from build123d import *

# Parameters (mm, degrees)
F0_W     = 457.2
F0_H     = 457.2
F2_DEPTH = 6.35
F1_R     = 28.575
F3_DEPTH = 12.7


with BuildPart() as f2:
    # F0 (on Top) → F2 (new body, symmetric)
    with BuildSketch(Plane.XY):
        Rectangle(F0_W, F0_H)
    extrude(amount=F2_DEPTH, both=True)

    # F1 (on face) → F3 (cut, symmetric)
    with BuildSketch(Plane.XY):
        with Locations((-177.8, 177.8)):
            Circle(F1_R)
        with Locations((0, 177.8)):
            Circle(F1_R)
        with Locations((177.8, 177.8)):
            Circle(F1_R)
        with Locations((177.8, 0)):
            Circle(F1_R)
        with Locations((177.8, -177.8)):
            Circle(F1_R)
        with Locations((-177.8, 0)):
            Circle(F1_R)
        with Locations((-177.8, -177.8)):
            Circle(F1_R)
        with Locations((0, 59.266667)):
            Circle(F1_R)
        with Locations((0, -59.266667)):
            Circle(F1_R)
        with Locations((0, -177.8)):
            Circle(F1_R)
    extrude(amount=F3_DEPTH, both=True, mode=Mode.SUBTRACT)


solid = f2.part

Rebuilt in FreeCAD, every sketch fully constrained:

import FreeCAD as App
import Part
import Sketcher
Q = App.Units.Quantity


def add_polygon(sketch, points):
    """Adds a closed chain of lines whose ends are joined by coincident constraints."""
    first, n = sketch.GeometryCount, len(points)
    for a, b in zip(points, points[1:] + points[:1]):
        sketch.addGeometry(Part.LineSegment(App.Vector(*a, 0), App.Vector(*b, 0)), False)
    for i in range(n):
        sketch.addConstraint(Sketcher.Constraint("Coincident", first + i, 2, first + (i + 1) % n, 1))

doc = App.newDocument("Part")
params = doc.addObject("Spreadsheet::Sheet", "Params")
for row, (alias, value) in enumerate([
    ("sketch1_width", "18 in"),
    ("pad1_length", "0.5 in"),
    ("sketch2_diameter", "2.25 in"),
    ("pocket1_length", "1 in"),
], start=1):
    params.set(f"A{row}", alias)
    params.set(f"B{row}", "=" + value)
    params.setAlias(f"B{row}", alias)

body = doc.addObject("PartDesign::Body", "Body")

# Sketch on XY plane
sketch1 = body.newObject("Sketcher::SketchObject", "Sketch")
sketch1.AttachmentSupport = (doc.getObject("XY_Plane"), [""])
sketch1.MapMode = "FlatFace"
add_polygon(sketch1, [(-229, 229), (-229, -229), (229, -229), (229, 229)])  # lines 0-3
sketch1.addConstraint([
    Sketcher.Constraint("Vertical", 0),
    Sketcher.Constraint("Horizontal", 1),
    Sketcher.Constraint("Vertical", 2),
    Sketcher.Constraint("Horizontal", 3),
    Sketcher.Constraint("Symmetric", 0, 2, 2, 2, -1, 1),
    Sketcher.Constraint("Equal", 3, 0),
    Sketcher.Constraint("DistanceX", 1, 1, 1, 2, Q("18 in")),
])
sketch1.setExpression("Constraints[10]", "Params.sketch1_width")
pad1 = body.newObject("PartDesign::Pad", "Pad")
pad1.Profile = sketch1
pad1.setExpression("Length", "Params.pad1_length")
pad1.Midplane = True

# Sketch on XY plane
sketch2 = body.newObject("Sketcher::SketchObject", "Sketch001")
sketch2.AttachmentSupport = (doc.getObject("XY_Plane"), [""])
sketch2.MapMode = "FlatFace"
sketch2.addGeometry([
    Part.Circle(App.Vector(-178, 178, 0), App.Vector(0, 0, 1), 29),  # 0
    Part.Circle(App.Vector(0, 178, 0), App.Vector(0, 0, 1), 29),  # 1
    Part.Circle(App.Vector(178, 178, 0), App.Vector(0, 0, 1), 29),  # 2
    Part.Circle(App.Vector(178, 0, 0), App.Vector(0, 0, 1), 29),  # 3
    Part.Circle(App.Vector(178, -178, 0), App.Vector(0, 0, 1), 29),  # 4
    Part.Circle(App.Vector(-178, 0, 0), App.Vector(0, 0, 1), 29),  # 5
    Part.Circle(App.Vector(-178, -178, 0), App.Vector(0, 0, 1), 29),  # 6
    Part.Circle(App.Vector(0, 59, 0), App.Vector(0, 0, 1), 29),  # 7
    Part.Circle(App.Vector(0, -59, 0), App.Vector(0, 0, 1), 29),  # 8
    Part.Circle(App.Vector(0, -178, 0), App.Vector(0, 0, 1), 29),  # 9
], False)
sketch2.addConstraint([
    Sketcher.Constraint("Equal", 0, 1),
    Sketcher.Constraint("Equal", 1, 2),
    Sketcher.Constraint("Equal", 2, 3),
    Sketcher.Constraint("Equal", 3, 4),
    Sketcher.Constraint("Equal", 4, 5),
    Sketcher.Constraint("Equal", 5, 6),
    Sketcher.Constraint("Equal", 6, 7),
    Sketcher.Constraint("Equal", 7, 8),
    Sketcher.Constraint("Equal", 8, 9),
    Sketcher.Constraint("Symmetric", 0, 3, 4, 3, -1, 1),
    Sketcher.Constraint("Symmetric", 3, 3, 5, 3, -1, 1),
    Sketcher.Constraint("Symmetric", 2, 3, 6, 3, -1, 1),
    Sketcher.Constraint("Symmetric", 7, 3, 8, 3, -1, 1),
    Sketcher.Constraint("Symmetric", 1, 3, 9, 3, -1, 1),
    Sketcher.Constraint("Symmetric", 0, 3, 2, 3, -2),
    Sketcher.Constraint("PointOnObject", 1, 3, -2),
    Sketcher.Constraint("PointOnObject", 3, 3, -1),
    Sketcher.Constraint("PointOnObject", 7, 3, -2),
    Sketcher.Constraint("Horizontal", 0, 3, 1, 3),
    Sketcher.Constraint("Vertical", 2, 3, 3, 3),
    Sketcher.Constraint("Diameter", 0, Q("2.25 in")),
    Sketcher.Constraint("DistanceX", 0, 3, -1, 1, Q("7 in")),
    Sketcher.Constraint("DistanceY", -1, 1, 0, 3, Q("7 in")),
    Sketcher.Constraint("DistanceY", -1, 1, 7, 3, Q("59.266667 mm")),
])
sketch2.setExpression("Constraints[20]", "Params.sketch2_diameter")
pocket1 = body.newObject("PartDesign::Pocket", "Pocket")
pocket1.Profile = sketch2
pocket1.setExpression("Length", "Params.pocket1_length")
pocket1.Midplane = True

doc.recompute()
